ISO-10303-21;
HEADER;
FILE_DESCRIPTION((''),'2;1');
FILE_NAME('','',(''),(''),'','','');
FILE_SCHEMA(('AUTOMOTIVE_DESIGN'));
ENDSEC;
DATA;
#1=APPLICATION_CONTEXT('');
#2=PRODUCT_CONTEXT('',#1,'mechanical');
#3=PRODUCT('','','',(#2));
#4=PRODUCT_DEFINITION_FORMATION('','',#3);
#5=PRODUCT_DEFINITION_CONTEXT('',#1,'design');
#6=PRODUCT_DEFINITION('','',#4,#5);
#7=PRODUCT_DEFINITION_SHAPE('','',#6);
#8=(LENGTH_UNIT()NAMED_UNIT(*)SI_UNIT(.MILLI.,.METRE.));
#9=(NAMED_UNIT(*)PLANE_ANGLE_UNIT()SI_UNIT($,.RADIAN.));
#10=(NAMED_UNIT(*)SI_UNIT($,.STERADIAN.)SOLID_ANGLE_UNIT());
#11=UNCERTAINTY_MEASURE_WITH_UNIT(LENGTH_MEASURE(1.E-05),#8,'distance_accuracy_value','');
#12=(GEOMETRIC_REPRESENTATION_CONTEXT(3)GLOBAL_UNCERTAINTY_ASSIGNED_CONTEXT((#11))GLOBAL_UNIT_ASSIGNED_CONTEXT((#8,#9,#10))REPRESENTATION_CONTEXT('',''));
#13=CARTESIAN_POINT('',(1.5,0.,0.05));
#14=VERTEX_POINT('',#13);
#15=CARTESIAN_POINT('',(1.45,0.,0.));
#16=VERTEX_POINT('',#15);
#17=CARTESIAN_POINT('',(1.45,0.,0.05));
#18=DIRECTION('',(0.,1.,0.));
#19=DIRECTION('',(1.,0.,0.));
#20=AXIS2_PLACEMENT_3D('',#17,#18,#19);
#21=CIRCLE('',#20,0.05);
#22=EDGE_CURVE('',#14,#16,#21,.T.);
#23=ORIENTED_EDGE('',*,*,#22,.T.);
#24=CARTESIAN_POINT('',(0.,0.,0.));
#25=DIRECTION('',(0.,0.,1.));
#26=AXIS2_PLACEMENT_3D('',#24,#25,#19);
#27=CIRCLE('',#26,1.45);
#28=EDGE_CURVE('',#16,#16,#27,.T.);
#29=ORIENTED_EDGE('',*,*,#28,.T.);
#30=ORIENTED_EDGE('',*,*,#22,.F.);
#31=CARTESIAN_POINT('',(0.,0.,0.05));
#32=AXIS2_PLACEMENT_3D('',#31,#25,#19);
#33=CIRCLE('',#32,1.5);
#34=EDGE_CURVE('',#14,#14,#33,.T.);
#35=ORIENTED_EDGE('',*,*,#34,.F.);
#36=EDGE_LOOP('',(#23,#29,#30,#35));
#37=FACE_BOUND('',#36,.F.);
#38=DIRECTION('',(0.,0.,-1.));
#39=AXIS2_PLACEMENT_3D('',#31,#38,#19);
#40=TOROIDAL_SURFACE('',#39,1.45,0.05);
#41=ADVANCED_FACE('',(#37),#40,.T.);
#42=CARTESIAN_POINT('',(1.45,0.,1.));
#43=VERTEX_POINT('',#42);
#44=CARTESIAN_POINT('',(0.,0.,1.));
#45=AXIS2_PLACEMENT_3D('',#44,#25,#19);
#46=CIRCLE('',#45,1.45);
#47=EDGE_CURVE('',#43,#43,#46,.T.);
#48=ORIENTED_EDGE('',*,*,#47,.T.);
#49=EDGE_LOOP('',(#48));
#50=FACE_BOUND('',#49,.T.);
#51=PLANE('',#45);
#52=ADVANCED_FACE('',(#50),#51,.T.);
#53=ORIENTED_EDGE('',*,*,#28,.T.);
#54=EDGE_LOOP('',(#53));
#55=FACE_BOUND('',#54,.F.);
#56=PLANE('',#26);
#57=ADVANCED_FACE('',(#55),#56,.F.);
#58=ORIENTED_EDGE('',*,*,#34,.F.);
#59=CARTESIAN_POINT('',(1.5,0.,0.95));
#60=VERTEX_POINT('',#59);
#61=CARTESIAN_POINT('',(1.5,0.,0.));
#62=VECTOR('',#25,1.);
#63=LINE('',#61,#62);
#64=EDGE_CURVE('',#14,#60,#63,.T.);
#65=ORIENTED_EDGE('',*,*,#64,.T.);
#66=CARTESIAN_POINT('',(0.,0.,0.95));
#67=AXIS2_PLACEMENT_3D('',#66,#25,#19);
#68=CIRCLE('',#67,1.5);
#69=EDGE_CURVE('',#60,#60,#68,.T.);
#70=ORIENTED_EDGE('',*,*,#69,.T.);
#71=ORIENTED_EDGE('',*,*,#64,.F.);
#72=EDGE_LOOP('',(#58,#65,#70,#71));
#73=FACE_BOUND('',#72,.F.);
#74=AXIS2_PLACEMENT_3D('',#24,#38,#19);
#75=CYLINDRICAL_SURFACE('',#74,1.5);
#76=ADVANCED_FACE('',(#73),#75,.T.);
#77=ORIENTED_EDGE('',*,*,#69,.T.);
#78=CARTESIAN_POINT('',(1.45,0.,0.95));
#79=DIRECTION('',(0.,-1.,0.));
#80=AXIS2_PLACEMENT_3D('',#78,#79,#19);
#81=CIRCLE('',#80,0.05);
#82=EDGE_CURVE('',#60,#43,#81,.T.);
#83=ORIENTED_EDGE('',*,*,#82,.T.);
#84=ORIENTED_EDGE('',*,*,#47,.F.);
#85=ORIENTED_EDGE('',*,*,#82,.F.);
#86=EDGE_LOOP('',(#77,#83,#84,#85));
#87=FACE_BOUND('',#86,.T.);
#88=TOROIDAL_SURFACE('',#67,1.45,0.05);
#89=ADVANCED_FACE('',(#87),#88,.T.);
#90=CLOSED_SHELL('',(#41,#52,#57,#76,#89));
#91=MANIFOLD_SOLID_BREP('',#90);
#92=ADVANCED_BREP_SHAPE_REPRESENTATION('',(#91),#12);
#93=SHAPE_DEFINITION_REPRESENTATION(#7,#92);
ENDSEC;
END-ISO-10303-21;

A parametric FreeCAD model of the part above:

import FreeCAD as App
import Part
import Sketcher
from FreeCAD import Vector


def edges_at(feature, points):
    """Names of the edges that pass closest to the given points."""
    edges = feature.Shape.Edges
    near = lambda p: min(range(len(edges)), key=lambda i: edges[i].distToShape(Part.Vertex(*p))[0])
    return sorted({f"Edge{near(p) + 1}" for p in points})

doc = App.newDocument("Part")
body = doc.addObject("PartDesign::Body", "Body")

# Sketch on XY plane
sketch1 = body.newObject("Sketcher::SketchObject", "Sketch")
sketch1.AttachmentSupport = (doc.getObject("XY_Plane"), [""])
sketch1.MapMode = "FlatFace"
sketch1.addGeometry(Part.Circle(Vector(0, 0, 0), Vector(0, 0, 1), 1.5), False)
sketch1.addConstraint(Sketcher.Constraint("Coincident", 0, 3, -1, 1))
sketch1.addConstraint(Sketcher.Constraint("Diameter", 0, 3.0))
pad1 = body.newObject("PartDesign::Pad", "Pad")
pad1.Profile = sketch1
pad1.Length = 1
doc.recompute()

fillet = body.newObject("PartDesign::Fillet", "Fillet")
fillet.Base = (pad1, edges_at(pad1, [(-1.399, -0.542, 1), (-1.399, -0.542, 0)]))
fillet.Radius = 0.05

doc.recompute()
